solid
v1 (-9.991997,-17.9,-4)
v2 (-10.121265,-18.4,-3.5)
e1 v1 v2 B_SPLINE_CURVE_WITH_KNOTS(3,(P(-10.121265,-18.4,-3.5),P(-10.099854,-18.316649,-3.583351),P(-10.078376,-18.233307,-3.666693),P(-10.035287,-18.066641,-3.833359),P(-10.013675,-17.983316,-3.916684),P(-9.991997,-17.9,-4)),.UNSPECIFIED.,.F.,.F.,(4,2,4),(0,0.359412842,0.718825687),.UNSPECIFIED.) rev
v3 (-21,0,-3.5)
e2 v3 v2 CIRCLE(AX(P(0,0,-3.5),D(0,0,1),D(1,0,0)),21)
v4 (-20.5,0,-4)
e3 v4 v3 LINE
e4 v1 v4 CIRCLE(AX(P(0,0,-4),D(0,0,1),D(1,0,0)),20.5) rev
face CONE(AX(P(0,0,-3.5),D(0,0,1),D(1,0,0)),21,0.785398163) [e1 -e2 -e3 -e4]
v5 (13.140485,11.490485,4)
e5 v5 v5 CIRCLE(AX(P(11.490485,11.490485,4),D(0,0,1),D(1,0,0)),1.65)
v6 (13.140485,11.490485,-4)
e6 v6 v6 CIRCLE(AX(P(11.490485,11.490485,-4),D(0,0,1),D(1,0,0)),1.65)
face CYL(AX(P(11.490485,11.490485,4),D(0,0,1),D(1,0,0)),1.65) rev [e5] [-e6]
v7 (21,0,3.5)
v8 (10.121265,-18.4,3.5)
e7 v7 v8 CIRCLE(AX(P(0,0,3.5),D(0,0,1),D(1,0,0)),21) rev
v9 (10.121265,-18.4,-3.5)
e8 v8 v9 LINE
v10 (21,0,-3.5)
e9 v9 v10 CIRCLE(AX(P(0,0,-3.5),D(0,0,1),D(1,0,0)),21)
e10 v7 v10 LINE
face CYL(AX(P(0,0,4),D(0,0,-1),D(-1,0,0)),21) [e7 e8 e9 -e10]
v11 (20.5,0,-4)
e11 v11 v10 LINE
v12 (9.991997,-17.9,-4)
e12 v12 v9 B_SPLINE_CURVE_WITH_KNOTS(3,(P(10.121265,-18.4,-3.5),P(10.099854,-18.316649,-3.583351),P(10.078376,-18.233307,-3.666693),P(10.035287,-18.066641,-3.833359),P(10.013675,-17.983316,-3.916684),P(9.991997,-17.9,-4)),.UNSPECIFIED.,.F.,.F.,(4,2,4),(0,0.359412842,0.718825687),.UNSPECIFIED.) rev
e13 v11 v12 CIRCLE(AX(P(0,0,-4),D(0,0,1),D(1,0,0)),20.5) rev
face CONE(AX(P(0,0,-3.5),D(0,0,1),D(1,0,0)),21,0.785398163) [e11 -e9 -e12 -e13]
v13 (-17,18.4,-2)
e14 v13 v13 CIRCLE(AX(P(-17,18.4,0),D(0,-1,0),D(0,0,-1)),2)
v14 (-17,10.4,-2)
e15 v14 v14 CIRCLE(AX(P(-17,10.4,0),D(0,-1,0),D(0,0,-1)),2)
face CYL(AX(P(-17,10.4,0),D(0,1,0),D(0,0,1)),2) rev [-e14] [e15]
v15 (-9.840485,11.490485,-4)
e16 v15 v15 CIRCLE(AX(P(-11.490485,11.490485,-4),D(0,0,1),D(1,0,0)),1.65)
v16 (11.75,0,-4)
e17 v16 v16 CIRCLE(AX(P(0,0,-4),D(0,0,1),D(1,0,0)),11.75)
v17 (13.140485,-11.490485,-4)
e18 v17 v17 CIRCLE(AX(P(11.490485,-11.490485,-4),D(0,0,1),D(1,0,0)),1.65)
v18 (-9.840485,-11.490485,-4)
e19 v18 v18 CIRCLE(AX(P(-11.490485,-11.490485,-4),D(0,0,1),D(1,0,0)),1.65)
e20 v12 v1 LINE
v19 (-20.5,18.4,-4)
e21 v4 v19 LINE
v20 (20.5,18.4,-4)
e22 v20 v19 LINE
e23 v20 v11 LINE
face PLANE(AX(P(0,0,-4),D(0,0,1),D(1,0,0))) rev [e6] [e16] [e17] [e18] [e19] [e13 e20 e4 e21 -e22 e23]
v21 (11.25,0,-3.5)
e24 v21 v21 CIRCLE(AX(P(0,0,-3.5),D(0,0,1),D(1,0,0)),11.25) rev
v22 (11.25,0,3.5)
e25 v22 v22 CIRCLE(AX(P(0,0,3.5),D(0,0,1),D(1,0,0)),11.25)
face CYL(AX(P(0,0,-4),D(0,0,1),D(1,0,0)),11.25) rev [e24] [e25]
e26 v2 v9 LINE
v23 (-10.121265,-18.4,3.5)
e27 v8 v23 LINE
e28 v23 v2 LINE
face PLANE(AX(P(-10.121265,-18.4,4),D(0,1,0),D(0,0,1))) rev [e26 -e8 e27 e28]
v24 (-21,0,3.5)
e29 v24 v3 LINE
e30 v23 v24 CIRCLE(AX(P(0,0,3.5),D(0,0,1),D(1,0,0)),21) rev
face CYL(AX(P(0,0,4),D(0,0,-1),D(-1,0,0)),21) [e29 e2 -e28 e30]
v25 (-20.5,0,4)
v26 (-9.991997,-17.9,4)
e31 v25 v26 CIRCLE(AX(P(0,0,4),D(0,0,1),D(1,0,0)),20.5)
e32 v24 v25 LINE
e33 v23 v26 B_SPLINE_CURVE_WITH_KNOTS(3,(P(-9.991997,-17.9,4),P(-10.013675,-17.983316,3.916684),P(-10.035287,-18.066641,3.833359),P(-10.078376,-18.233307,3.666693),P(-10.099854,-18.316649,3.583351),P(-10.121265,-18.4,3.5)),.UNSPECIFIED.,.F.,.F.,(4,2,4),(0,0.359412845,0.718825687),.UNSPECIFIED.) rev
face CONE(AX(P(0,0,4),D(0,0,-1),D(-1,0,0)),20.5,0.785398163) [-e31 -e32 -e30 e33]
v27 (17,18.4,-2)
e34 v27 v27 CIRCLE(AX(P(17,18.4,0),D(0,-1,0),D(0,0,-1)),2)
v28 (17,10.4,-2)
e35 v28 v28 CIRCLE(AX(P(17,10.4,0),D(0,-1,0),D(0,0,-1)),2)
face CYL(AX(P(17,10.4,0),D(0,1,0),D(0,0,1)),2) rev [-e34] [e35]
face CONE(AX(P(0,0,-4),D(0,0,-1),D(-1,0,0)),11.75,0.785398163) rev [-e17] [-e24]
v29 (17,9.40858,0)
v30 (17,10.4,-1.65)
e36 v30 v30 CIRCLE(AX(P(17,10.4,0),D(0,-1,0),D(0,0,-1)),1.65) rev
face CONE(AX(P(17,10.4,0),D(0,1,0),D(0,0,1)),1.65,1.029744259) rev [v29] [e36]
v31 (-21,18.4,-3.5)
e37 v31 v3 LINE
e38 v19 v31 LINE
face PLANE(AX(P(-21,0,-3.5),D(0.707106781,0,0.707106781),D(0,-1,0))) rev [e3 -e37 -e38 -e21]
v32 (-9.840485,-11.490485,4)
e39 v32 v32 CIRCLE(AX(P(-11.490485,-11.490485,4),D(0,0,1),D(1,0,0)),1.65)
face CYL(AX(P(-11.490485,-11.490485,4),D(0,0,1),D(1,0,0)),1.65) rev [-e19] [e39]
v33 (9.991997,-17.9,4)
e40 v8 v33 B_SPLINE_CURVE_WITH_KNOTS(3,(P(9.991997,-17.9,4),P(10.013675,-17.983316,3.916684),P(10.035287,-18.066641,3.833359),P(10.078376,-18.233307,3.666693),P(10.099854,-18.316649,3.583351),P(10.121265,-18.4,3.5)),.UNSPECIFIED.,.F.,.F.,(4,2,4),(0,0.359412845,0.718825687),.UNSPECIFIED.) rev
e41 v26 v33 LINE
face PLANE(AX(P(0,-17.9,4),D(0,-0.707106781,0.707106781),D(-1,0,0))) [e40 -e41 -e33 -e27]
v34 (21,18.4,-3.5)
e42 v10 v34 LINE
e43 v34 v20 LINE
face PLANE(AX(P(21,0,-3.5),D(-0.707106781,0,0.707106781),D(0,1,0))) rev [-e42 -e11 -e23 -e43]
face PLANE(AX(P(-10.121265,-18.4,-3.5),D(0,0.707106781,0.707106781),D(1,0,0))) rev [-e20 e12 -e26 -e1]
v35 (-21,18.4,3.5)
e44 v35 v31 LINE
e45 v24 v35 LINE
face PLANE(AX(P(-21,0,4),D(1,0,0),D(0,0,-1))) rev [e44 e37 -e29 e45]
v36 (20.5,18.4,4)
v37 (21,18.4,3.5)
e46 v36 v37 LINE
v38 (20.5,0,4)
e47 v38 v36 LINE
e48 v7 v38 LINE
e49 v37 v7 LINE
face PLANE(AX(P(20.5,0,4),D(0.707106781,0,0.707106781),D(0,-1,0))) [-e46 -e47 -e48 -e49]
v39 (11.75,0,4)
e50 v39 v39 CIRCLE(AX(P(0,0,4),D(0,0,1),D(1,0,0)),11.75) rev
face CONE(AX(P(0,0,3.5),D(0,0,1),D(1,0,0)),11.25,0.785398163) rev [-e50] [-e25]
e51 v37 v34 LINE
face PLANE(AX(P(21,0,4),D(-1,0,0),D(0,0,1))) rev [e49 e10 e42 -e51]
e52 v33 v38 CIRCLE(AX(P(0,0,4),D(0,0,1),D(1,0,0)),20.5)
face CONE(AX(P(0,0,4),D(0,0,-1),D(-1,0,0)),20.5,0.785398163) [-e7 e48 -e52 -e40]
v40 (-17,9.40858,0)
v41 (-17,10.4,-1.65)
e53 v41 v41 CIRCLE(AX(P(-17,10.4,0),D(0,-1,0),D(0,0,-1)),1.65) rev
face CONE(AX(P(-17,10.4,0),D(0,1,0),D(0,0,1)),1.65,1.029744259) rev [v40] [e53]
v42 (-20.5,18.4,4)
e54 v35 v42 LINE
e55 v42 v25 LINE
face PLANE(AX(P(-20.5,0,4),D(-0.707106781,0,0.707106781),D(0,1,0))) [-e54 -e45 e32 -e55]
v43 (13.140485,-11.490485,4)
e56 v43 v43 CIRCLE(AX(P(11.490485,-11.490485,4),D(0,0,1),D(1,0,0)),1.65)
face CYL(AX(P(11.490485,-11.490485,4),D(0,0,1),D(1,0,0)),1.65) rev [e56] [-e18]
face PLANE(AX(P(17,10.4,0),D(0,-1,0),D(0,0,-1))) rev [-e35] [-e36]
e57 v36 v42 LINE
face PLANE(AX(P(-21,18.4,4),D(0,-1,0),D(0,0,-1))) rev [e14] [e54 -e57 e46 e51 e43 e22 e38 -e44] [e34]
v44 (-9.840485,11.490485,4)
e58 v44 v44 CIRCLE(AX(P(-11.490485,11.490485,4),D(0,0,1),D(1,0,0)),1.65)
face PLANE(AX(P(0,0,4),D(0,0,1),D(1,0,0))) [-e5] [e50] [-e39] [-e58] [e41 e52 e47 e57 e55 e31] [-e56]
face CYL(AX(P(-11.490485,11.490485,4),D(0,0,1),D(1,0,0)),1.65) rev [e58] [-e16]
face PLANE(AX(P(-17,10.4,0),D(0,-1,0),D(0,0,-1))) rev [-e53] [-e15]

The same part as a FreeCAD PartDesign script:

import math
import FreeCAD as App
import Part
import Sketcher

V = App.Vector
Q = App.Units.Quantity


def edges_at(feature, points):
    """Names of the edges that pass closest to the given points."""
    edges = feature.Shape.Edges
    near = lambda p: min(range(len(edges)), key=lambda i: edges[i].distToShape(Part.Vertex(*p))[0])
    return sorted({f"Edge{near(p) + 1}" for p in points})

doc = App.newDocument("Part")
body = doc.addObject("PartDesign::Body", "Body")

# Sketch on XY plane
sketch1 = body.newObject("Sketcher::SketchObject", "Sketch")
sketch1.AttachmentSupport = (doc.getObject("XY_Plane"), [""])
sketch1.MapMode = "FlatFace"
sketch1.addGeometry(Part.LineSegment(V(21, 0, 0), V(21, 18, 0)), False)
sketch1.addGeometry(Part.LineSegment(V(21, 18, 0), V(-21, 18, 0)), False)
sketch1.addGeometry(Part.LineSegment(V(-21, 18, 0), V(-21, 0, 0)), False)
sketch1.addGeometry(Part.ArcOfCircle(Part.Circle(V(0, 0, 0), V(0, 0, 1), 21), math.radians(180), math.radians(241)), False)
sketch1.addGeometry(Part.LineSegment(V(-10, -18, 0), V(10, -18, 0)), False)
sketch1.addGeometry(Part.ArcOfCircle(Part.Circle(V(0, 0, 0), V(0, 0, 1), 21), math.radians(-61), math.radians(0)), False)
sketch1.addConstraint(Sketcher.Constraint("Coincident", 0, 2, 1, 1))
sketch1.addConstraint(Sketcher.Constraint("Coincident", 1, 2, 2, 1))
sketch1.addConstraint(Sketcher.Constraint("Tangent", 2, 2, 3, 1))
sketch1.addConstraint(Sketcher.Constraint("Coincident", 3, 2, 4, 1))
sketch1.addConstraint(Sketcher.Constraint("Coincident", 4, 2, 5, 1))
sketch1.addConstraint(Sketcher.Constraint("Tangent", 5, 2, 0, 1))
sketch1.addConstraint(Sketcher.Constraint("Vertical", 0))
sketch1.addConstraint(Sketcher.Constraint("Horizontal", 1))
sketch1.addConstraint(Sketcher.Constraint("Vertical", 2))
sketch1.addConstraint(Sketcher.Constraint("Horizontal", 4))
sketch1.addConstraint(Sketcher.Constraint("Coincident", 3, 3, -1, 1))
sketch1.addConstraint(Sketcher.Constraint("Coincident", 5, 3, -1, 1))
sketch1.addConstraint(Sketcher.Constraint("Equal", 3, 5))
sketch1.addConstraint(Sketcher.Constraint("Radius", 3, Q("21 mm")))
sketch1.addConstraint(Sketcher.Constraint("DistanceY", 0, 1, 0, 2, Q("18.4 mm")))
sketch1.addConstraint(Sketcher.Constraint("DistanceY", 3, 2, -1, 1, Q("18.4 mm")))
pad1 = body.newObject("PartDesign::Pad", "Pad")
pad1.Profile = sketch1
pad1.Length = 8
pad1.Midplane = True

# Sketch on XY plane
sketch2 = body.newObject("Sketcher::SketchObject", "Sketch001")
sketch2.AttachmentSupport = (doc.getObject("XY_Plane"), [""])
sketch2.MapMode = "FlatFace"
sketch2.AttachmentOffset = App.Placement(V(0, 0, 4), App.Rotation())
sketch2.addGeometry(Part.Circle(V(0, 0, 0), V(0, 0, 1), 11), False)
sketch2.addConstraint(Sketcher.Constraint("Coincident", 0, 3, -1, 1))
sketch2.addConstraint(Sketcher.Constraint("Diameter", 0, Q("22.5 mm")))
pocket1 = body.newObject("PartDesign::Pocket", "Pocket")
pocket1.Profile = sketch2
pocket1.Type = "ThroughAll"

# Sketch on XY plane
sketch3 = body.newObject("Sketcher::SketchObject", "Sketch002")
sketch3.AttachmentSupport = (doc.getObject("XY_Plane"), [""])
sketch3.MapMode = "FlatFace"
sketch3.AttachmentOffset = App.Placement(V(0, 0, 4), App.Rotation())
sketch3.addGeometry(Part.Circle(V(-11.5, 11.5, 0), V(0, 0, 1), 1.6), False)
sketch3.addGeometry(Part.Circle(V(11.5, 11.5, 0), V(0, 0, 1), 1.6), False)
sketch3.addGeometry(Part.Circle(V(11.5, -11.5, 0), V(0, 0, 1), 1.6), False)
sketch3.addGeometry(Part.Circle(V(-11.5, -11.5, 0), V(0, 0, 1), 1.6), False)
sketch3.addConstraint(Sketcher.Constraint("Equal", 0, 1))
sketch3.addConstraint(Sketcher.Constraint("Equal", 1, 2))
sketch3.addConstraint(Sketcher.Constraint("Equal", 2, 3))
sketch3.addConstraint(Sketcher.Constraint("Symmetric", 0, 3, 2, 3, -1, 1))
sketch3.addConstraint(Sketcher.Constraint("Symmetric", 1, 3, 3, 3, -1, 1))
sketch3.addConstraint(Sketcher.Constraint("Symmetric", 0, 3, 1, 3, -2))
sketch3.addConstraint(Sketcher.Constraint("Diameter", 0, Q("3.3 mm")))
sketch3.addConstraint(Sketcher.Constraint("DistanceX", 0, 3, 1, 3, Q("22.98097 mm")))
sketch3.addConstraint(Sketcher.Constraint("DistanceY", 2, 3, 1, 3, Q("22.98097 mm")))
doc.recompute()
hole = body.newObject("PartDesign::Hole", "Hole")
hole.Profile = sketch3
hole.ThreadType = "None"
hole.Diameter = 3.3
hole.DepthType = "ThroughAll"

# Sketch on XZ plane
sketch4 = body.newObject("Sketcher::SketchObject", "Sketch003")
sketch4.AttachmentSupport = (doc.getObject("XZ_Plane"), [""])
sketch4.MapMode = "FlatFace"
sketch4.AttachmentOffset = App.Placement(V(0, 0, -18.4), App.Rotation())
sketch4.addGeometry(Part.Circle(V(-17, 0, 0), V(0, 0, 1), 1.6), False)
sketch4.addGeometry(Part.Circle(V(17, 0, 0), V(0, 0, 1), 1.6), False)
sketch4.addConstraint(Sketcher.Constraint("Equal", 0, 1))
sketch4.addConstraint(Sketcher.Constraint("Symmetric", 0, 3, 1, 3, -1, 1))
sketch4.addConstraint(Sketcher.Constraint("PointOnObject", 0, 3, -1))
sketch4.addConstraint(Sketcher.Constraint("Diameter", 0, Q("3.3 mm")))
sketch4.addConstraint(Sketcher.Constraint("DistanceX", 0, 3, -1, 1, Q("17 mm")))
doc.recompute()
hole2 = body.newObject("PartDesign::Hole", "Hole001")
hole2.Profile = sketch4
hole2.ThreadType = "None"
hole2.Diameter = 3.3
hole2.DepthType = "Dimension"
hole2.Depth = 8
hole2.DrillPoint = "Angled"
hole2.DrillPointAngle = 118
hole2.Reversed = True

# Sketch on XZ plane
sketch5 = body.newObject("Sketcher::SketchObject", "Sketch004")
sketch5.AttachmentSupport = (doc.getObject("XZ_Plane"), [""])
sketch5.MapMode = "FlatFace"
sketch5.AttachmentOffset = App.Placement(V(0, 0, -18.4), App.Rotation())
sketch5.addGeometry(Part.Circle(V(-17, 0, 0), V(0, 0, 1), 2), False)
sketch5.addGeometry(Part.Circle(V(17, 0, 0), V(0, 0, 1), 2), False)
sketch5.addConstraint(Sketcher.Constraint("Equal", 0, 1))
sketch5.addConstraint(Sketcher.Constraint("Symmetric", 0, 3, 1, 3, -1, 1))
sketch5.addConstraint(Sketcher.Constraint("PointOnObject", 0, 3, -1))
sketch5.addConstraint(Sketcher.Constraint("Diameter", 0, Q("4 mm")))
sketch5.addConstraint(Sketcher.Constraint("DistanceX", 0, 3, -1, 1, Q("17 mm")))
pocket2 = body.newObject("PartDesign::Pocket", "Pocket001")
pocket2.Profile = sketch5
pocket2.Length = 8
pocket2.Reversed = True
doc.recompute()

chamfer = body.newObject("PartDesign::Chamfer", "Chamfer")
chamfer.Base = (pocket2, edges_at(pocket2, [
    (-21, 9.2, 4),
    (-18.077, -10.688, 4),
    (0, -18.4, 4),
    (-11.25, 0, -4),
    (-11.25, 0, 4),
    (18.077, -10.688, 4),
    (0, -18.4, -4),
    (-18.077, -10.688, -4),
    (-21, 9.2, -4),
    (21, 9.2, 4),
    (21, 9.2, -4),
    (18.077, -10.688, -4),
]))
chamfer.Size = 0.5

doc.recompute()
